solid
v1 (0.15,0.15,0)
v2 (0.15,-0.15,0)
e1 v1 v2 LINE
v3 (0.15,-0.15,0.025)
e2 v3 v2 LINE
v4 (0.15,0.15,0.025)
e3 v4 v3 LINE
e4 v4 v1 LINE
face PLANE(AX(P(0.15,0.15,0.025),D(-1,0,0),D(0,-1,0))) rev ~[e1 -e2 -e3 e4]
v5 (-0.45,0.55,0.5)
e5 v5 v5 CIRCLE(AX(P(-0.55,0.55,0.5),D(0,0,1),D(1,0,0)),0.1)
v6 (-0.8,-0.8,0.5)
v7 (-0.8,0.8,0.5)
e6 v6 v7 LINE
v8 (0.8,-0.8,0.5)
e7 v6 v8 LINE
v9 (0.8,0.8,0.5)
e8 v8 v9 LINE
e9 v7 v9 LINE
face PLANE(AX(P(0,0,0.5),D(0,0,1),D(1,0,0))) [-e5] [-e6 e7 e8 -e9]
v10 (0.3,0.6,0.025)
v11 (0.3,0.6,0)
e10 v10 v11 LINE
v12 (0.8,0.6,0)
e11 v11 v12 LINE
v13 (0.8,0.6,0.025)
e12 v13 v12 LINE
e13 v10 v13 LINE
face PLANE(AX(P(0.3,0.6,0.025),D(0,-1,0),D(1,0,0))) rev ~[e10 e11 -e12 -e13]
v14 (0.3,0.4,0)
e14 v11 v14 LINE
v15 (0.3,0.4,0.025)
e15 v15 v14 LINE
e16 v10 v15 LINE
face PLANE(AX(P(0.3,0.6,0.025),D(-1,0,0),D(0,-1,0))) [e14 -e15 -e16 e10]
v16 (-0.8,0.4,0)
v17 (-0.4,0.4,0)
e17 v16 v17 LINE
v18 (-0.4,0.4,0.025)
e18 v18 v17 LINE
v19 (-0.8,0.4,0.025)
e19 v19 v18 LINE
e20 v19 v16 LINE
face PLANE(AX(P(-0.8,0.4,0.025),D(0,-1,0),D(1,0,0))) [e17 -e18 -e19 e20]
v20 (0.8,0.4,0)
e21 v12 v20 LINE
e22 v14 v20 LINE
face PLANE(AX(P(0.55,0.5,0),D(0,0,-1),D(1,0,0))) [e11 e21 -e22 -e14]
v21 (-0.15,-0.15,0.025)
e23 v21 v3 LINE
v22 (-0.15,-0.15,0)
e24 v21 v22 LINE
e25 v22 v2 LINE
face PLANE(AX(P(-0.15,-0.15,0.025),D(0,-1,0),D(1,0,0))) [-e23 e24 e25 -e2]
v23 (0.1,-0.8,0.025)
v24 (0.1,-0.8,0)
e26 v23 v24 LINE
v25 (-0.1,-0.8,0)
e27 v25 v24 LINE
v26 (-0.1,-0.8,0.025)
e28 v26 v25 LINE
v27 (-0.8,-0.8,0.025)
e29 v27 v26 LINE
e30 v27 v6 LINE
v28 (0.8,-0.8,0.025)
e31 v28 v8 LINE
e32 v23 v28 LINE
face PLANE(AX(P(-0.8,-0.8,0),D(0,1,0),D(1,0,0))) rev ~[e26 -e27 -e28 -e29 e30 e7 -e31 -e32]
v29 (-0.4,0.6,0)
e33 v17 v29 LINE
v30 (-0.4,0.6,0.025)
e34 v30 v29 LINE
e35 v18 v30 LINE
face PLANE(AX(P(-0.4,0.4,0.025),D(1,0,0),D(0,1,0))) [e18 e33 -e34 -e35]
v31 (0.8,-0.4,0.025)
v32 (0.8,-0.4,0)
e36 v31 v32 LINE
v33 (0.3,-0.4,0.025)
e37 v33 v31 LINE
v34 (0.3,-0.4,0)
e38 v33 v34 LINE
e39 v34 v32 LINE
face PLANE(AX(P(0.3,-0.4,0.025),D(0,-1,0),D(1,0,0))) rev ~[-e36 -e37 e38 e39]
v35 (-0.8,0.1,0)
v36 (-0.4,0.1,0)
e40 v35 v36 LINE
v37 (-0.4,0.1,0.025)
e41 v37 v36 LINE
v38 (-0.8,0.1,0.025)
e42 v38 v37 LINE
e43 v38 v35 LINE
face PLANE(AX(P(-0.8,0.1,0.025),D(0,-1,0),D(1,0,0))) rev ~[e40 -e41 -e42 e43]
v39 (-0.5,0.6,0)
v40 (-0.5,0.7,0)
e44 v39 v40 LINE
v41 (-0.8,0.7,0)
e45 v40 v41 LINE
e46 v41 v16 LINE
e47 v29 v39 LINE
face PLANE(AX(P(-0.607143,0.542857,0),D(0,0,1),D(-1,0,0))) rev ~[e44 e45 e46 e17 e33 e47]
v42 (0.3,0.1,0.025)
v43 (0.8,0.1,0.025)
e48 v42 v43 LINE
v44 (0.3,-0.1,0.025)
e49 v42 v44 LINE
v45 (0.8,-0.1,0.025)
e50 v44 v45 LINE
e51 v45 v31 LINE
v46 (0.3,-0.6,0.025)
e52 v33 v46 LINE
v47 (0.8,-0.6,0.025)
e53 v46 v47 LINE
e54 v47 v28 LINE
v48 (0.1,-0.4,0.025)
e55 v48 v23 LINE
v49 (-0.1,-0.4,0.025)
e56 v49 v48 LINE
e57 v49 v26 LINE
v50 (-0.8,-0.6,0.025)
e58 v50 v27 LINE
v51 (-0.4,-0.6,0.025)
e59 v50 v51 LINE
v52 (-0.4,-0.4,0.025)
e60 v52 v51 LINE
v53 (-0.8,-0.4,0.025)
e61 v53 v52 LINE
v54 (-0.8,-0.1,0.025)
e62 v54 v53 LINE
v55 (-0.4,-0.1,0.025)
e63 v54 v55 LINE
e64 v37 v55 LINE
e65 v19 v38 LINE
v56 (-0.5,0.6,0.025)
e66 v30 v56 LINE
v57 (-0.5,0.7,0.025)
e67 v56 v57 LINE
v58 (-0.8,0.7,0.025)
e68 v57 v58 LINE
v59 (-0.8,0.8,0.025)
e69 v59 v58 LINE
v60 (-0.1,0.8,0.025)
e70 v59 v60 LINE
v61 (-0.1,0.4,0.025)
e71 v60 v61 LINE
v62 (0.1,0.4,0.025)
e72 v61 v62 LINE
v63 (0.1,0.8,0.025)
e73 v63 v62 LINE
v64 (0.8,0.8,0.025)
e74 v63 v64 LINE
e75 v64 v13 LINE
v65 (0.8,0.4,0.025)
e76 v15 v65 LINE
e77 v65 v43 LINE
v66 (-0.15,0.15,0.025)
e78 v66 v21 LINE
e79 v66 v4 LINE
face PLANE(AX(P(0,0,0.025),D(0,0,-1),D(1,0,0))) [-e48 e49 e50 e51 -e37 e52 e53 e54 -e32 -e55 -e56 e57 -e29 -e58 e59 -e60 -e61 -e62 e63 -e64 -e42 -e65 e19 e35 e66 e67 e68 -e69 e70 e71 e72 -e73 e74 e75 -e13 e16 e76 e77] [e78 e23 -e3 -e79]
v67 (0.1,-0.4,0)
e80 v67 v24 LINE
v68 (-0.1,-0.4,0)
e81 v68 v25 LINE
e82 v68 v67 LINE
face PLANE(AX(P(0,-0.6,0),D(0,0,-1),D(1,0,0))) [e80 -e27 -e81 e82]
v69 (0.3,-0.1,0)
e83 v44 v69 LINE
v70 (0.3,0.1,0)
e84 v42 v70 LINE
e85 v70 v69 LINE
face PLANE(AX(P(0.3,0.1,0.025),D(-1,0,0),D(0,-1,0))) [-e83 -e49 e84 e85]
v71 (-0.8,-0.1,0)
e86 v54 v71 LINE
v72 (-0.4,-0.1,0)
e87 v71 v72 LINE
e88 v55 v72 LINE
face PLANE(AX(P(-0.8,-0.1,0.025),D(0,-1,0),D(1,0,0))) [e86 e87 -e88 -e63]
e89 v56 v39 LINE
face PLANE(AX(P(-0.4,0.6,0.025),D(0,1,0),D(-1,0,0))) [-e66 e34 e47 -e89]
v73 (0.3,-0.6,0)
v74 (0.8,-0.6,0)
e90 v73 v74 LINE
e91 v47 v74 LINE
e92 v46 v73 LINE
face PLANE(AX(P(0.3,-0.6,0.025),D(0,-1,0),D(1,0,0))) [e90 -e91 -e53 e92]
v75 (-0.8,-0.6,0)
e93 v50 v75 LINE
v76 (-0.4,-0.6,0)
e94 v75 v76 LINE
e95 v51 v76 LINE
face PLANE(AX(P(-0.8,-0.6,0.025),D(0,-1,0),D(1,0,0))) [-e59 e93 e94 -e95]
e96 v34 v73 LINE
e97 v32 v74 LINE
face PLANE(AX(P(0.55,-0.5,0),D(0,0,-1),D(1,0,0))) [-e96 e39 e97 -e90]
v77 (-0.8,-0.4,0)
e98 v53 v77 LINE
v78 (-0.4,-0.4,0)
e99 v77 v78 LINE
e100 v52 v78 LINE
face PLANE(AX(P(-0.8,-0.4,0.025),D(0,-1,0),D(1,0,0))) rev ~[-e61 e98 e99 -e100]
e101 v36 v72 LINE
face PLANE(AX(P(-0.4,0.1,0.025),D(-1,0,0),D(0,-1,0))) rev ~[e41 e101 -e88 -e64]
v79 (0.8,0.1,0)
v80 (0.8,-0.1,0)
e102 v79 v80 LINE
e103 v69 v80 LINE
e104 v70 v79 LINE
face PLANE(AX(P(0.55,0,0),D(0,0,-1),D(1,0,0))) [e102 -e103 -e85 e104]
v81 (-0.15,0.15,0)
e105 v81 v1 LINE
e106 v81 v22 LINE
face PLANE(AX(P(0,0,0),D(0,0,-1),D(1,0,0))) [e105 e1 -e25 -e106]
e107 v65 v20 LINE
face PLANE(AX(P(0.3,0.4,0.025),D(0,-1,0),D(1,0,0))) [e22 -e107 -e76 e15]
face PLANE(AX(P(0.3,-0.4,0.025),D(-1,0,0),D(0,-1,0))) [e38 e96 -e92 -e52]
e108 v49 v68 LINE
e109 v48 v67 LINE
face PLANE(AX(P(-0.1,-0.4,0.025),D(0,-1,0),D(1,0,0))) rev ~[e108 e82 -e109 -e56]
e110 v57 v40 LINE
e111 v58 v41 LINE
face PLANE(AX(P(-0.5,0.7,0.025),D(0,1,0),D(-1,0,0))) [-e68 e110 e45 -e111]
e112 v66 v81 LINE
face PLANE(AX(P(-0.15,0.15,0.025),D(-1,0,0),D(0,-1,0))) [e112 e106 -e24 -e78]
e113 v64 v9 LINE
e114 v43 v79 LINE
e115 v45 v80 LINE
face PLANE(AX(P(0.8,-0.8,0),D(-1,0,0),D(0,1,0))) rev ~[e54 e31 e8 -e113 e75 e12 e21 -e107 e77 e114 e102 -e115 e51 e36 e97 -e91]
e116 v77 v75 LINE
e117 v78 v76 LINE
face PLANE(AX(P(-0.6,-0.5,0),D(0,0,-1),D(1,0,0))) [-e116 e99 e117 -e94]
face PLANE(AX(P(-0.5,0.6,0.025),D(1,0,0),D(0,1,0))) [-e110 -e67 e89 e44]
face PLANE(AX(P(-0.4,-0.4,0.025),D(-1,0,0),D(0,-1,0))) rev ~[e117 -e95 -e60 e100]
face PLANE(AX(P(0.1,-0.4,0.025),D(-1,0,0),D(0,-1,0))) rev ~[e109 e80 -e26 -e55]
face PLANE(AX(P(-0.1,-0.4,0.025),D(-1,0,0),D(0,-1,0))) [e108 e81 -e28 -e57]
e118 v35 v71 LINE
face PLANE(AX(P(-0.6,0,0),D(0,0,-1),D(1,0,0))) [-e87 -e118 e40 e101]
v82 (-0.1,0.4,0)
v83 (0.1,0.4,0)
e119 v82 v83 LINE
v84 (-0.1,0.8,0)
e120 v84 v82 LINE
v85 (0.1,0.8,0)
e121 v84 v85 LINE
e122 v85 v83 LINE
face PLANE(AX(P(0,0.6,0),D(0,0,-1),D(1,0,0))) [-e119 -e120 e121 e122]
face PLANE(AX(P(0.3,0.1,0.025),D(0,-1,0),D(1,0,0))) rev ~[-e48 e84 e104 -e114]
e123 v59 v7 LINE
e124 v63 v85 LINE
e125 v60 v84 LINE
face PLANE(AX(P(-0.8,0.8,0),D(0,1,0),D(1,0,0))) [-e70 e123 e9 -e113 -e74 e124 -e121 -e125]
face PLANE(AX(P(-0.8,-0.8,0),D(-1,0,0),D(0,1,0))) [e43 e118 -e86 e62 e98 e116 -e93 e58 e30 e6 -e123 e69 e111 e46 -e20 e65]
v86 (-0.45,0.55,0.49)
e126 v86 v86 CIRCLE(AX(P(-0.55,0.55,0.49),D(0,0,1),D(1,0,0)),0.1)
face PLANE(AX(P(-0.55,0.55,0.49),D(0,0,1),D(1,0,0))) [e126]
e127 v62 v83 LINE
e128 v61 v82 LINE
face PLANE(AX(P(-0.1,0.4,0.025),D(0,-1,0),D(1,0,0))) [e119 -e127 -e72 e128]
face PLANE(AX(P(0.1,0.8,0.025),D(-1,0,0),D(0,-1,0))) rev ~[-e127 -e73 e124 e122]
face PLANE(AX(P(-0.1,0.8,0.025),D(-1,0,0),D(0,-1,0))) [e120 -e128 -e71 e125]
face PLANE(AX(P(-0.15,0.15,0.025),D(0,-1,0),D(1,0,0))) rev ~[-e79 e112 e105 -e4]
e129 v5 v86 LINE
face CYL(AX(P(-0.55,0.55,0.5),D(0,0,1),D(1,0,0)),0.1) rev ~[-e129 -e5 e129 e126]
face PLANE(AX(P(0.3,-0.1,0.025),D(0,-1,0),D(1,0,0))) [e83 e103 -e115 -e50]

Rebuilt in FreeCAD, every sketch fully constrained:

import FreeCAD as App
import Part
import Sketcher

V = App.Vector
Q = App.Units.Quantity


def add_polygon(sketch, points):
    """Adds a closed chain of lines whose ends are joined by coincident constraints."""
    first, n = sketch.GeometryCount, len(points)
    for a, b in zip(points, points[1:] + points[:1]):
        sketch.addGeometry(Part.LineSegment(App.Vector(*a, 0), App.Vector(*b, 0)), False)
    for i in range(n):
        sketch.addConstraint(Sketcher.Constraint("Coincident", first + i, 2, first + (i + 1) % n, 1))

doc = App.newDocument("Part")
body = doc.addObject("PartDesign::Body", "Body")

sketch1 = body.newObject("Sketcher::SketchObject", "Sketch")
sketch1.AttachmentSupport = (doc.getObject("XY_Plane"), [""])
sketch1.MapMode = "FlatFace"
add_polygon(sketch1, [(-0.8, 0.8), (-0.8, -0.8), (0.8, -0.8), (0.8, 0.8)])
sketch1.addConstraint([
    Sketcher.Constraint("Vertical", 0),
    Sketcher.Constraint("Horizontal", 1),
    Sketcher.Constraint("Vertical", 2),
    Sketcher.Constraint("Horizontal", 3),
    Sketcher.Constraint("Symmetric", 0, 2, 2, 2, -1, 1),
    Sketcher.Constraint("Equal", 3, 0),
    Sketcher.Constraint("DistanceX", 1, 1, 1, 2, Q("1.6 mm")),
])
pad1 = body.newObject("PartDesign::Pad", "Pad")
pad1.Profile = sketch1
pad1.Length = 0.5

sketch2 = body.newObject("Sketcher::SketchObject", "Sketch001")
sketch2.AttachmentSupport = (doc.getObject("XY_Plane"), [""])
sketch2.MapMode = "FlatFace"
add_polygon(sketch2, [(-0.8, -0.8), (-0.8, 0.8), (0.8, 0.8), (0.8, -0.8)])
sketch2.addConstraint([
    Sketcher.Constraint("Vertical", 0),
    Sketcher.Constraint("Horizontal", 1),
    Sketcher.Constraint("Vertical", 2),
    Sketcher.Constraint("Horizontal", 3),
    Sketcher.Constraint("Symmetric", 0, 2, 2, 2, -1, 1),
    Sketcher.Constraint("Equal", 3, 0),
    Sketcher.Constraint("DistanceX", 1, 1, 1, 2, Q("1.6 mm")),
])
pocket1 = body.newObject("PartDesign::Pocket", "Pocket")
pocket1.Profile = sketch2
pocket1.Length = 0.025
pocket1.Reversed = True

sketch3 = body.newObject("Sketcher::SketchObject", "Sketch002")
sketch3.AttachmentSupport = (doc.getObject("XY_Plane"), [""])
sketch3.MapMode = "FlatFace"
sketch3.AttachmentOffset = App.Placement(V(0, 0, 0.025), App.Rotation())
add_polygon(sketch3, [(-0.8, -0.6), (-0.8, -0.4), (-0.4, -0.4), (-0.4, -0.6)])
add_polygon(sketch3, [(-0.8, -0.1), (-0.8, 0.1), (-0.4, 0.1), (-0.4, -0.1)])
add_polygon(sketch3, [(-0.4, 0.4), (-0.8, 0.4), (-0.8, 0.7), (-0.5, 0.7), (-0.5, 0.6), (-0.4, 0.6)])
add_polygon(sketch3, [(0.3, -0.6), (0.3, -0.4), (0.8, -0.4), (0.8, -0.6)])
add_polygon(sketch3, [(0.3, -0.1), (0.3, 0.1), (0.8, 0.1), (0.8, -0.1)])
add_polygon(sketch3, [(0.3, 0.4), (0.3, 0.6), (0.8, 0.6), (0.8, 0.4)])
add_polygon(sketch3, [(-0.1, 0.4), (-0.1, 0.8), (0.1, 0.8), (0.1, 0.4)])
add_polygon(sketch3, [(-0.1, -0.8), (-0.1, -0.4), (0.1, -0.4), (0.1, -0.8)])
add_polygon(sketch3, [(-0.15, -0.15), (-0.15, 0.15), (0.15, 0.15), (0.15, -0.15)])
sketch3.addConstraint([
    Sketcher.Constraint("Vertical", 0),
    Sketcher.Constraint("Horizontal", 1),
    Sketcher.Constraint("Vertical", 2),
    Sketcher.Constraint("Horizontal", 3),
    Sketcher.Constraint("Vertical", 4),
    Sketcher.Constraint("Horizontal", 5),
    Sketcher.Constraint("Vertical", 6),
    Sketcher.Constraint("Horizontal", 7),
    Sketcher.Constraint("Horizontal", 8),
    Sketcher.Constraint("Vertical", 9),
    Sketcher.Constraint("Horizontal", 10),
    Sketcher.Constraint("Vertical", 11),
    Sketcher.Constraint("Horizontal", 12),
    Sketcher.Constraint("Vertical", 13),
    Sketcher.Constraint("Vertical", 14),
    Sketcher.Constraint("Horizontal", 15),
    Sketcher.Constraint("Vertical", 16),
    Sketcher.Constraint("Horizontal", 17),
    Sketcher.Constraint("Vertical", 18),
    Sketcher.Constraint("Horizontal", 19),
    Sketcher.Constraint("Vertical", 20),
    Sketcher.Constraint("Horizontal", 21),
    Sketcher.Constraint("Vertical", 22),
    Sketcher.Constraint("Horizontal", 23),
    Sketcher.Constraint("Vertical", 24),
    Sketcher.Constraint("Horizontal", 25),
    Sketcher.Constraint("Vertical", 26),
    Sketcher.Constraint("Horizontal", 27),
    Sketcher.Constraint("Vertical", 28),
    Sketcher.Constraint("Horizontal", 29),
    Sketcher.Constraint("Vertical", 30),
    Sketcher.Constraint("Horizontal", 31),
    Sketcher.Constraint("Vertical", 32),
    Sketcher.Constraint("Horizontal", 33),
    Sketcher.Constraint("Vertical", 34),
    Sketcher.Constraint("Horizontal", 35),
    Sketcher.Constraint("Vertical", 36),
    Sketcher.Constraint("Horizontal", 37),
    Sketcher.Constraint("Symmetric", 8, 2, 15, 2, -1, 1),
    Sketcher.Constraint("Symmetric", 7, 2, 19, 2, -1, 1),
    Sketcher.Constraint("Symmetric", 3, 2, 23, 2, -1, 1),
    Sketcher.Constraint("Symmetric", 28, 2, 30, 2, -1, 1),
    Sketcher.Constraint("Symmetric", 26, 2, 32, 2, -1, 1),
    Sketcher.Constraint("Symmetric", 34, 2, 36, 2, -1, 1),
    Sketcher.Constraint("Symmetric", 0, 2, 15, 2, -2),
    Sketcher.Constraint("Symmetric", 2, 2, 12, 2, -1),
    Sketcher.Constraint("Symmetric", 17, 2, 22, 2, -1),
    Sketcher.Constraint("Horizontal", 5, 2, 18, 2),
    Sketcher.Constraint("Horizontal", 7, 2, 20, 2),
    Sketcher.Constraint("Horizontal", 13, 2, 24, 2),
    Sketcher.Constraint("Horizontal", 25, 2, 28, 2),
    Sketcher.Constraint("Vertical", 3, 2, 4, 2),
    Sketcher.Constraint("Vertical", 2, 2, 5, 2),
    Sketcher.Constraint("Vertical", 17, 2, 18, 2),
    Sketcher.Constraint("Vertical", 29, 2, 30, 2),
    Sketcher.Constraint("Equal", 10, 35),
    Sketcher.Constraint("Equal", 33, 0),
    Sketcher.Constraint("Equal", 2, 4),
    Sketcher.Constraint("Equal", 37, 9),
    Sketcher.Constraint("Equal", 12, 11),
    Sketcher.Constraint("Equal", 8, 26),
    Sketcher.Constraint("Equal", 9, 34),
    Sketcher.Constraint("DistanceX", 1, 1, 1, 2, Q("0.4 mm")),
    Sketcher.Constraint("DistanceX", 10, 1, 10, 2, Q("0.3 mm")),
    Sketcher.Constraint("DistanceX", 15, 1, 15, 2, Q("0.5 mm")),
    Sketcher.Constraint("DistanceX", 0, 2, -1, 1, Q("0.8 mm")),
    Sketcher.Constraint("DistanceY", 0, 2, -1, 1, Q("0.4 mm")),
])
pad2 = body.newObject("PartDesign::Pad", "Pad001")
pad2.Profile = sketch3
pad2.Length = 0.025
pad2.Reversed = True

sketch4 = body.newObject("Sketcher::SketchObject", "Sketch003")
sketch4.AttachmentSupport = (doc.getObject("XY_Plane"), [""])
sketch4.MapMode = "FlatFace"
sketch4.AttachmentOffset = App.Placement(V(0, 0, 0.5), App.Rotation())
sketch4.addGeometry(Part.Circle(V(-0.55, 0.55, 0), V(0, 0, 1), 0.1), False)
sketch4.addConstraint([
    Sketcher.Constraint("Diameter", 0, Q("0.2 mm")),
    Sketcher.Constraint("DistanceX", 0, 3, -1, 1, Q("0.55 mm")),
    Sketcher.Constraint("DistanceY", -1, 1, 0, 3, Q("0.55 mm")),
])
pocket2 = body.newObject("PartDesign::Pocket", "Pocket001")
pocket2.Profile = sketch4
pocket2.Length = 0.01

doc.recompute()
